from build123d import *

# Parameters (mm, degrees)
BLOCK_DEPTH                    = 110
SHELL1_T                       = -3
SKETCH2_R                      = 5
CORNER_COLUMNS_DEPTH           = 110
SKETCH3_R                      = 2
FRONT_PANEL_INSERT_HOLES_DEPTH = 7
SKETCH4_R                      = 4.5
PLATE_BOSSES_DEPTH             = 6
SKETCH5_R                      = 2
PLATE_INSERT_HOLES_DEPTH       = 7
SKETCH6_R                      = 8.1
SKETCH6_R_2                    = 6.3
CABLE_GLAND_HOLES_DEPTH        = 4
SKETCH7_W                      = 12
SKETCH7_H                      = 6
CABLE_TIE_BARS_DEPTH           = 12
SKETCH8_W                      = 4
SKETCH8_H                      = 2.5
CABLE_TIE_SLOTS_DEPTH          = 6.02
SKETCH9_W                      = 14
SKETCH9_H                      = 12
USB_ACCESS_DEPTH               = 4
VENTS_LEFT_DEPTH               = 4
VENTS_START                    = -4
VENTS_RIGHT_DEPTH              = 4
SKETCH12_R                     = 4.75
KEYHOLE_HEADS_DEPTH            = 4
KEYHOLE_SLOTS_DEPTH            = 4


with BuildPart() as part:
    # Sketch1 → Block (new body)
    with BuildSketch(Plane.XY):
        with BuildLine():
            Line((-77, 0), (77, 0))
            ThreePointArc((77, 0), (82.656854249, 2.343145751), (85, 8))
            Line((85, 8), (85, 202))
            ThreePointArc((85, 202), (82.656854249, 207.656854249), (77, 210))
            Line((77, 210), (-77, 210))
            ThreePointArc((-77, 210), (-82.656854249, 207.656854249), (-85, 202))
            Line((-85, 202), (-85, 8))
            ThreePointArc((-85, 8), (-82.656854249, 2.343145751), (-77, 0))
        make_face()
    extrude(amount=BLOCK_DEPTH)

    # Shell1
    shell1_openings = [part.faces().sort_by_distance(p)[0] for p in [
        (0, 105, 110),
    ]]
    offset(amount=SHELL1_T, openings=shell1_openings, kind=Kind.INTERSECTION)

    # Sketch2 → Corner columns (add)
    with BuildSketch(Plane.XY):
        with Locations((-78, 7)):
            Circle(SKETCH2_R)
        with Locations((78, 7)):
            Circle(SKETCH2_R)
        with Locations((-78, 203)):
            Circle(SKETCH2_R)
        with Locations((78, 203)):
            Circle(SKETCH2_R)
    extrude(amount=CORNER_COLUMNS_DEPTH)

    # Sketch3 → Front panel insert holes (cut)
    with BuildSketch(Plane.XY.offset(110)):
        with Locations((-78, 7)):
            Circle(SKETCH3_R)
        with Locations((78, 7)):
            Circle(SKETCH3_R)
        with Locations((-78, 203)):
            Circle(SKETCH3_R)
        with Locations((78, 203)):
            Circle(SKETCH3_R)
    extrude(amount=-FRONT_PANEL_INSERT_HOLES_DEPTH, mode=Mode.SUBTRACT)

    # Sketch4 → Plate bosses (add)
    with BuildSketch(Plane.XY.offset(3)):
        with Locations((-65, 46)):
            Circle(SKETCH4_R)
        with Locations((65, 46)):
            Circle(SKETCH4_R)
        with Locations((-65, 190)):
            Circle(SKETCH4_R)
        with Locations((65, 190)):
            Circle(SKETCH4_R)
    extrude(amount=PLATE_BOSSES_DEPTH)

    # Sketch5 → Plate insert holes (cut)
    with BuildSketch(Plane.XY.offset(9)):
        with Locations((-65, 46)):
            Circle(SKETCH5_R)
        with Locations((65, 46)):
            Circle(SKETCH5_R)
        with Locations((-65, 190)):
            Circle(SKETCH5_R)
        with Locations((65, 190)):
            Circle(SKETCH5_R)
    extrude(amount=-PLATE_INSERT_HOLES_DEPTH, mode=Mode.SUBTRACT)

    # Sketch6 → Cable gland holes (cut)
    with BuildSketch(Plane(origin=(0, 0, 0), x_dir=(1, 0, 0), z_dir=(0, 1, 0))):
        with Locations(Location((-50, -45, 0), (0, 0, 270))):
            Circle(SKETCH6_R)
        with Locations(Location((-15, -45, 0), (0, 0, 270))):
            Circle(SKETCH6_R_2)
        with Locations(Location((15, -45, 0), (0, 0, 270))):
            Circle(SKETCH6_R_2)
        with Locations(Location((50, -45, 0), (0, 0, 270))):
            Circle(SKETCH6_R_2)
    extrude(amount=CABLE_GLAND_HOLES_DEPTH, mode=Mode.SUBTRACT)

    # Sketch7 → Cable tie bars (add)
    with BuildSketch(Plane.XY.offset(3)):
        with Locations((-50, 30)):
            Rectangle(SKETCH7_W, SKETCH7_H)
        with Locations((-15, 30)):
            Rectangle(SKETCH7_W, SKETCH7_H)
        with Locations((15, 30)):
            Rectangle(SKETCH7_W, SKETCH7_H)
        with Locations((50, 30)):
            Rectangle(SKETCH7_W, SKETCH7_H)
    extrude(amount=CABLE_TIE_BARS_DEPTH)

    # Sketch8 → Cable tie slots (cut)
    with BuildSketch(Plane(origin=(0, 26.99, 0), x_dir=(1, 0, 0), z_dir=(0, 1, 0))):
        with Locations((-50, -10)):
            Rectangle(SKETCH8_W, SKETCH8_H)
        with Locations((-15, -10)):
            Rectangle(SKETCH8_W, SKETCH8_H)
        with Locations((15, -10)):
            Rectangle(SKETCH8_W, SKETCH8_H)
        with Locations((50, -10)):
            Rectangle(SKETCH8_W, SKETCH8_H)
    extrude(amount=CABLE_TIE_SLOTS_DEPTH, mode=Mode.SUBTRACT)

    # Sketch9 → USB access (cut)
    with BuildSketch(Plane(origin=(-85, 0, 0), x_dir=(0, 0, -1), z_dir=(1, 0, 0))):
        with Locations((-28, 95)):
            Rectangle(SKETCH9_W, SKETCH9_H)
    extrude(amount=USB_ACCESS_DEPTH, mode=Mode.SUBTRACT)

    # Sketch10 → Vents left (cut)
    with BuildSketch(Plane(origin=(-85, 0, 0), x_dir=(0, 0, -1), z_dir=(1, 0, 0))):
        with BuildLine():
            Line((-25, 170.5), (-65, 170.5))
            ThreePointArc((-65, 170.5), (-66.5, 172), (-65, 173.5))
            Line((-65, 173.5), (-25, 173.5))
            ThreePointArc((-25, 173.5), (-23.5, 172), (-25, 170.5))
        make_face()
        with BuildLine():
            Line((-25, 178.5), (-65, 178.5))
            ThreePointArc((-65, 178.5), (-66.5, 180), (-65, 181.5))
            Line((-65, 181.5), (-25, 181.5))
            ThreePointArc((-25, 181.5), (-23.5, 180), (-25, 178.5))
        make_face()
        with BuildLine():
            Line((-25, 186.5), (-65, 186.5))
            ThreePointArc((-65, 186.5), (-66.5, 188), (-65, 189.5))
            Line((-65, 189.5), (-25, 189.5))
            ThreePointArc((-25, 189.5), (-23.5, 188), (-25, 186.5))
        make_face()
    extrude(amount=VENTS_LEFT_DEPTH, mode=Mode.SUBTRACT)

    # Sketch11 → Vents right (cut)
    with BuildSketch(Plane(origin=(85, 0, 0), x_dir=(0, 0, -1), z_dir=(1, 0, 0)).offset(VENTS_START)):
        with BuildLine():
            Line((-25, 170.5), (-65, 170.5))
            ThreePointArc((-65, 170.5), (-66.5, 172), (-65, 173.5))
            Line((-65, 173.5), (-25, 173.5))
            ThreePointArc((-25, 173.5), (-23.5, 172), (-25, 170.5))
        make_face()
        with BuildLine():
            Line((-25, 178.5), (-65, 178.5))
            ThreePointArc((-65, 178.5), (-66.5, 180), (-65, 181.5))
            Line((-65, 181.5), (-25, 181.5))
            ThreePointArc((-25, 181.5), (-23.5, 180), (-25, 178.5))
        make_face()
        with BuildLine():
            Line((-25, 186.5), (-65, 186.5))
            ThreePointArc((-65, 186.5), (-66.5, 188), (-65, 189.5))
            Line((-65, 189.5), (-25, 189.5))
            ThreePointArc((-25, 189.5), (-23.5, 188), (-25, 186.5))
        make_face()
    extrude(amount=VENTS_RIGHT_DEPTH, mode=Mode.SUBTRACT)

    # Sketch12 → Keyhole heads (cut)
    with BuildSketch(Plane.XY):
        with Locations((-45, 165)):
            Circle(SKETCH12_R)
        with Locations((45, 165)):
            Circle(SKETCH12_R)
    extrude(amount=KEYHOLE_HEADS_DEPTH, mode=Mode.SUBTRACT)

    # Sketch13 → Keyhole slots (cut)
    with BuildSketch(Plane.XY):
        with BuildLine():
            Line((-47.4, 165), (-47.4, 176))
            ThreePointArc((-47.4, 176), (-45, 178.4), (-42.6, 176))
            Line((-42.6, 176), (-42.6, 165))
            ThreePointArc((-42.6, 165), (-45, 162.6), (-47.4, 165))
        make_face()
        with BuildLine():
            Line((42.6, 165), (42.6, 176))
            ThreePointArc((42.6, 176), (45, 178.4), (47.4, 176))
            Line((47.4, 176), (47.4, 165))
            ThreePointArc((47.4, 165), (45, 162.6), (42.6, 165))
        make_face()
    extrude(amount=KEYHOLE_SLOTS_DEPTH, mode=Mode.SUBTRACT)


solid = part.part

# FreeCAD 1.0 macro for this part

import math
import FreeCAD as App
import Part
import Sketcher

V = App.Vector
Q = App.Units.Quantity


def faces_at(feature, points):
    """Names of the faces that lie closest to the given points."""
    faces = feature.Shape.Faces
    near = lambda p: min(range(len(faces)), key=lambda i: faces[i].distToShape(Part.Vertex(*p))[0])
    return sorted({f"Face{near(p) + 1}" for p in points})

doc = App.newDocument("Part")
body = doc.addObject("PartDesign::Body", "Body")

# Sketch on XY plane
sketch1 = doc.addObject("Sketcher::SketchObject", "Sketch")
body.addObject(sketch1)
sketch1.AttachmentSupport = (doc.XY_Plane, [""])
sketch1.MapMode = "FlatFace"
sketch1.addGeometry(Part.LineSegment(V(-77, 0, 0), V(77, 0, 0)), False)
sketch1.addGeometry(Part.ArcOfCircle(Part.Circle(V(77, 8, 0), V(0, 0, 1), 8), math.radians(-90), math.radians(0)), False)
sketch1.addGeometry(Part.LineSegment(V(85, 8, 0), V(85, 202, 0)), False)
sketch1.addGeometry(Part.ArcOfCircle(Part.Circle(V(77, 202, 0), V(0, 0, 1), 8), math.radians(0), math.radians(90)), False)
sketch1.addGeometry(Part.LineSegment(V(77, 210, 0), V(-77, 210, 0)), False)
sketch1.addGeometry(Part.ArcOfCircle(Part.Circle(V(-77, 202, 0), V(0, 0, 1), 8), math.radians(90), math.radians(180)), False)
sketch1.addGeometry(Part.LineSegment(V(-85, 202, 0), V(-85, 8, 0)), False)
sketch1.addGeometry(Part.ArcOfCircle(Part.Circle(V(-77, 8, 0), V(0, 0, 1), 8), math.radians(-180), math.radians(-90)), False)
sketch1.addConstraint(Sketcher.Constraint("Tangent", 0, 2, 1, 1))
sketch1.addConstraint(Sketcher.Constraint("Tangent", 1, 2, 2, 1))
sketch1.addConstraint(Sketcher.Constraint("Tangent", 2, 2, 3, 1))
sketch1.addConstraint(Sketcher.Constraint("Tangent", 3, 2, 4, 1))
sketch1.addConstraint(Sketcher.Constraint("Tangent", 4, 2, 5, 1))
sketch1.addConstraint(Sketcher.Constraint("Tangent", 5, 2, 6, 1))
sketch1.addConstraint(Sketcher.Constraint("Tangent", 6, 2, 7, 1))
sketch1.addConstraint(Sketcher.Constraint("Tangent", 7, 2, 0, 1))
sketch1.addConstraint(Sketcher.Constraint("Horizontal", 0))
sketch1.addConstraint(Sketcher.Constraint("Vertical", 2))
sketch1.addConstraint(Sketcher.Constraint("Horizontal", 4))
sketch1.addConstraint(Sketcher.Constraint("Vertical", 6))
sketch1.addConstraint(Sketcher.Constraint("Equal", 1, 3))
sketch1.addConstraint(Sketcher.Constraint("Equal", 3, 5))
sketch1.addConstraint(Sketcher.Constraint("Equal", 5, 7))
sketch1.addConstraint(Sketcher.Constraint("Symmetric", 0, 2, 7, 2, -1, 1))
sketch1.addConstraint(Sketcher.Constraint("Radius", 1, Q("8 mm")))
sketch1.addConstraint(Sketcher.Constraint("DistanceX", 0, 1, 0, 2, Q("154 mm")))
sketch1.addConstraint(Sketcher.Constraint("DistanceY", 2, 1, 2, 2, Q("194 mm")))
pad1 = doc.addObject("PartDesign::Pad", "Pad")
body.addObject(pad1)
pad1.Profile = sketch1
pad1.Length = 110
doc.recompute()

thickness = doc.addObject("PartDesign::Thickness", "Thickness")
body.addObject(thickness)
thickness.Base = (pad1, faces_at(pad1, [(0, 105, 110)]))
thickness.Value = 3
thickness.Reversed = True
thickness.Join = "Intersection"

# Sketch on XY plane
sketch2 = doc.addObject("Sketcher::SketchObject", "Sketch001")
body.addObject(sketch2)
sketch2.AttachmentSupport = (doc.XY_Plane, [""])
sketch2.MapMode = "FlatFace"
sketch2.addGeometry(Part.Circle(V(-78, 7, 0), V(0, 0, 1), 5), False)
sketch2.addGeometry(Part.Circle(V(78, 7, 0), V(0, 0, 1), 5), False)
sketch2.addGeometry(Part.Circle(V(-78, 203, 0), V(0, 0, 1), 5), False)
sketch2.addGeometry(Part.Circle(V(78, 203, 0), V(0, 0, 1), 5), False)
sketch2.addConstraint(Sketcher.Constraint("Equal", 0, 1))
sketch2.addConstraint(Sketcher.Constraint("Equal", 1, 2))
sketch2.addConstraint(Sketcher.Constraint("Equal", 2, 3))
sketch2.addConstraint(Sketcher.Constraint("Symmetric", 0, 3, 1, 3, -2))
sketch2.addConstraint(Sketcher.Constraint("Symmetric", 2, 3, 3, 3, -2))
sketch2.addConstraint(Sketcher.Constraint("Vertical", 0, 3, 2, 3))
sketch2.addConstraint(Sketcher.Constraint("Diameter", 0, Q("10 mm")))
sketch2.addConstraint(Sketcher.Constraint("DistanceX", 0, 3, -1, 1, Q("78 mm")))
sketch2.addConstraint(Sketcher.Constraint("DistanceY", -1, 1, 0, 3, Q("7 mm")))
sketch2.addConstraint(Sketcher.Constraint("DistanceY", -1, 1, 2, 3, Q("203 mm")))
pad2 = doc.addObject("PartDesign::Pad", "Pad001")
body.addObject(pad2)
pad2.Profile = sketch2
pad2.Length = 110

# Sketch on XY plane
sketch3 = doc.addObject("Sketcher::SketchObject", "Sketch002")
body.addObject(sketch3)
sketch3.AttachmentSupport = (doc.XY_Plane, [""])
sketch3.MapMode = "FlatFace"
sketch3.AttachmentOffset = App.Placement(V(0, 0, 110), App.Rotation())
sketch3.addGeometry(Part.Circle(V(-78, 7, 0), V(0, 0, 1), 2), False)
sketch3.addGeometry(Part.Circle(V(78, 7, 0), V(0, 0, 1), 2), False)
sketch3.addGeometry(Part.Circle(V(-78, 203, 0), V(0, 0, 1), 2), False)
sketch3.addGeometry(Part.Circle(V(78, 203, 0), V(0, 0, 1), 2), False)
sketch3.addConstraint(Sketcher.Constraint("Equal", 0, 1))
sketch3.addConstraint(Sketcher.Constraint("Equal", 1, 2))
sketch3.addConstraint(Sketcher.Constraint("Equal", 2, 3))
sketch3.addConstraint(Sketcher.Constraint("Symmetric", 0, 3, 1, 3, -2))
sketch3.addConstraint(Sketcher.Constraint("Symmetric", 2, 3, 3, 3, -2))
sketch3.addConstraint(Sketcher.Constraint("Vertical", 0, 3, 2, 3))
sketch3.addConstraint(Sketcher.Constraint("Diameter", 0, Q("4 mm")))
sketch3.addConstraint(Sketcher.Constraint("DistanceX", 0, 3, -1, 1, Q("78 mm")))
sketch3.addConstraint(Sketcher.Constraint("DistanceY", -1, 1, 0, 3, Q("7 mm")))
sketch3.addConstraint(Sketcher.Constraint("DistanceY", -1, 1, 2, 3, Q("203 mm")))
pocket1 = doc.addObject("PartDesign::Pocket", "Pocket")
body.addObject(pocket1)
pocket1.Profile = sketch3
pocket1.Length = 7

# Sketch on XY plane
sketch4 = doc.addObject("Sketcher::SketchObject", "Sketch003")
body.addObject(sketch4)
sketch4.AttachmentSupport = (doc.XY_Plane, [""])
sketch4.MapMode = "FlatFace"
sketch4.AttachmentOffset = App.Placement(V(0, 0, 3), App.Rotation())
sketch4.addGeometry(Part.Circle(V(-65, 46, 0), V(0, 0, 1), 4.5), False)
sketch4.addGeometry(Part.Circle(V(65, 46, 0), V(0, 0, 1), 4.5), False)
sketch4.addGeometry(Part.Circle(V(-65, 190, 0), V(0, 0, 1), 4.5), False)
sketch4.addGeometry(Part.Circle(V(65, 190, 0), V(0, 0, 1), 4.5), False)
sketch4.addConstraint(Sketcher.Constraint("Equal", 0, 1))
sketch4.addConstraint(Sketcher.Constraint("Equal", 1, 2))
sketch4.addConstraint(Sketcher.Constraint("Equal", 2, 3))
sketch4.addConstraint(Sketcher.Constraint("Symmetric", 0, 3, 1, 3, -2))
sketch4.addConstraint(Sketcher.Constraint("Symmetric", 2, 3, 3, 3, -2))
sketch4.addConstraint(Sketcher.Constraint("Vertical", 0, 3, 2, 3))
sketch4.addConstraint(Sketcher.Constraint("Diameter", 0, Q("9 mm")))
sketch4.addConstraint(Sketcher.Constraint("DistanceX", 0, 3, -1, 1, Q("65 mm")))
sketch4.addConstraint(Sketcher.Constraint("DistanceY", -1, 1, 0, 3, Q("46 mm")))
sketch4.addConstraint(Sketcher.Constraint("DistanceY", -1, 1, 2, 3, Q("190 mm")))
pad3 = doc.addObject("PartDesign::Pad", "Pad002")
body.addObject(pad3)
pad3.Profile = sketch4
pad3.Length = 6

# Sketch on XY plane
sketch5 = doc.addObject("Sketcher::SketchObject", "Sketch004")
body.addObject(sketch5)
sketch5.AttachmentSupport = (doc.XY_Plane, [""])
sketch5.MapMode = "FlatFace"
sketch5.AttachmentOffset = App.Placement(V(0, 0, 9), App.Rotation())
sketch5.addGeometry(Part.Circle(V(-65, 46, 0), V(0, 0, 1), 2), False)
sketch5.addGeometry(Part.Circle(V(65, 46, 0), V(0, 0, 1), 2), False)
sketch5.addGeometry(Part.Circle(V(-65, 190, 0), V(0, 0, 1), 2), False)
sketch5.addGeometry(Part.Circle(V(65, 190, 0), V(0, 0, 1), 2), False)
sketch5.addConstraint(Sketcher.Constraint("Equal", 0, 1))
sketch5.addConstraint(Sketcher.Constraint("Equal", 1, 2))
sketch5.addConstraint(Sketcher.Constraint("Equal", 2, 3))
sketch5.addConstraint(Sketcher.Constraint("Symmetric", 0, 3, 1, 3, -2))
sketch5.addConstraint(Sketcher.Constraint("Symmetric", 2, 3, 3, 3, -2))
sketch5.addConstraint(Sketcher.Constraint("Vertical", 0, 3, 2, 3))
sketch5.addConstraint(Sketcher.Constraint("Diameter", 0, Q("4 mm")))
sketch5.addConstraint(Sketcher.Constraint("DistanceX", 0, 3, -1, 1, Q("65 mm")))
sketch5.addConstraint(Sketcher.Constraint("DistanceY", -1, 1, 0, 3, Q("46 mm")))
sketch5.addConstraint(Sketcher.Constraint("DistanceY", -1, 1, 2, 3, Q("190 mm")))
pocket2 = doc.addObject("PartDesign::Pocket", "Pocket001")
body.addObject(pocket2)
pocket2.Profile = sketch5
pocket2.Length = 7

# Sketch on XZ plane
sketch6 = doc.addObject("Sketcher::SketchObject", "Sketch005")
body.addObject(sketch6)
sketch6.AttachmentSupport = (doc.XZ_Plane, [""])
sketch6.MapMode = "FlatFace"
sketch6.addGeometry(Part.Circle(V(-50, 45, 0), V(0, 0, 1), 8), False)
sketch6.addGeometry(Part.Circle(V(-15, 45, 0), V(0, 0, 1), 6), False)
sketch6.addGeometry(Part.Circle(V(15, 45, 0), V(0, 0, 1), 6), False)
sketch6.addGeometry(Part.Circle(V(50, 45, 0), V(0, 0, 1), 6), False)
sketch6.addConstraint(Sketcher.Constraint("Equal", 1, 2))
sketch6.addConstraint(Sketcher.Constraint("Equal", 2, 3))
sketch6.addConstraint(Sketcher.Constraint("Symmetric", 1, 3, 2, 3, -2))
sketch6.addConstraint(Sketcher.Constraint("Symmetric", 0, 3, 3, 3, -2))
sketch6.addConstraint(Sketcher.Constraint("Horizontal", 0, 3, 1, 3))
sketch6.addConstraint(Sketcher.Constraint("Diameter", 0, Q("16.2 mm")))
sketch6.addConstraint(Sketcher.Constraint("Diameter", 1, Q("12.6 mm")))
sketch6.addConstraint(Sketcher.Constraint("DistanceX", 0, 3, -1, 1, Q("50 mm")))
sketch6.addConstraint(Sketcher.Constraint("DistanceY", -1, 1, 0, 3, Q("45 mm")))
sketch6.addConstraint(Sketcher.Constraint("DistanceX", 1, 3, -1, 1, Q("15 mm")))
pocket3 = doc.addObject("PartDesign::Pocket", "Pocket002")
body.addObject(pocket3)
pocket3.Profile = sketch6
pocket3.Length = 4

# Sketch on XY plane
sketch7 = doc.addObject("Sketcher::SketchObject", "Sketch006")
body.addObject(sketch7)
sketch7.AttachmentSupport = (doc.XY_Plane, [""])
sketch7.MapMode = "FlatFace"
sketch7.AttachmentOffset = App.Placement(V(0, 0, 3), App.Rotation())
sketch7.addGeometry(Part.LineSegment(V(-56, 33, 0), V(-56, 27, 0)), False)
sketch7.addGeometry(Part.LineSegment(V(-56, 27, 0), V(-44, 27, 0)), False)
sketch7.addGeometry(Part.LineSegment(V(-44, 27, 0), V(-44, 33, 0)), False)
sketch7.addGeometry(Part.LineSegment(V(-44, 33, 0), V(-56, 33, 0)), False)
sketch7.addGeometry(Part.LineSegment(V(-21, 33, 0), V(-21, 27, 0)), False)
sketch7.addGeometry(Part.LineSegment(V(-21, 27, 0), V(-9, 27, 0)), False)
sketch7.addGeometry(Part.LineSegment(V(-9, 27, 0), V(-9, 33, 0)), False)
sketch7.addGeometry(Part.LineSegment(V(-9, 33, 0), V(-21, 33, 0)), False)
sketch7.addGeometry(Part.LineSegment(V(9, 33, 0), V(9, 27, 0)), False)
sketch7.addGeometry(Part.LineSegment(V(9, 27, 0), V(21, 27, 0)), False)
sketch7.addGeometry(Part.LineSegment(V(21, 27, 0), V(21, 33, 0)), False)
sketch7.addGeometry(Part.LineSegment(V(21, 33, 0), V(9, 33, 0)), False)
sketch7.addGeometry(Part.LineSegment(V(44, 33, 0), V(44, 27, 0)), False)
sketch7.addGeometry(Part.LineSegment(V(44, 27, 0), V(56, 27, 0)), False)
sketch7.addGeometry(Part.LineSegment(V(56, 27, 0), V(56, 33, 0)), False)
sketch7.addGeometry(Part.LineSegment(V(56, 33, 0), V(44, 33, 0)), False)
sketch7.addConstraint(Sketcher.Constraint("Coincident", 0, 2, 1, 1))
sketch7.addConstraint(Sketcher.Constraint("Coincident", 1, 2, 2, 1))
sketch7.addConstraint(Sketcher.Constraint("Coincident", 2, 2, 3, 1))
sketch7.addConstraint(Sketcher.Constraint("Coincident", 3, 2, 0, 1))
sketch7.addConstraint(Sketcher.Constraint("Coincident", 4, 2, 5, 1))
sketch7.addConstraint(Sketcher.Constraint("Coincident", 5, 2, 6, 1))
sketch7.addConstraint(Sketcher.Constraint("Coincident", 6, 2, 7, 1))
sketch7.addConstraint(Sketcher.Constraint("Coincident", 7, 2, 4, 1))
sketch7.addConstraint(Sketcher.Constraint("Coincident", 8, 2, 9, 1))
sketch7.addConstraint(Sketcher.Constraint("Coincident", 9, 2, 10, 1))
sketch7.addConstraint(Sketcher.Constraint("Coincident", 10, 2, 11, 1))
sketch7.addConstraint(Sketcher.Constraint("Coincident", 11, 2, 8, 1))
sketch7.addConstraint(Sketcher.Constraint("Coincident", 12, 2, 13, 1))
sketch7.addConstraint(Sketcher.Constraint("Coincident", 13, 2, 14, 1))
sketch7.addConstraint(Sketcher.Constraint("Coincident", 14, 2, 15, 1))
sketch7.addConstraint(Sketcher.Constraint("Coincident", 15, 2, 12, 1))
sketch7.addConstraint(Sketcher.Constraint("Vertical", 0))
sketch7.addConstraint(Sketcher.Constraint("Horizontal", 1))
sketch7.addConstraint(Sketcher.Constraint("Vertical", 2))
sketch7.addConstraint(Sketcher.Constraint("Horizontal", 3))
sketch7.addConstraint(Sketcher.Constraint("Vertical", 4))
sketch7.addConstraint(Sketcher.Constraint("Horizontal", 5))
sketch7.addConstraint(Sketcher.Constraint("Vertical", 6))
sketch7.addConstraint(Sketcher.Constraint("Horizontal", 7))
sketch7.addConstraint(Sketcher.Constraint("Vertical", 8))
sketch7.addConstraint(Sketcher.Constraint("Horizontal", 9))
sketch7.addConstraint(Sketcher.Constraint("Vertical", 10))
sketch7.addConstraint(Sketcher.Constraint("Horizontal", 11))
sketch7.addConstraint(Sketcher.Constraint("Vertical", 12))
sketch7.addConstraint(Sketcher.Constraint("Horizontal", 13))
sketch7.addConstraint(Sketcher.Constraint("Vertical", 14))
sketch7.addConstraint(Sketcher.Constraint("Horizontal", 15))
sketch7.addConstraint(Sketcher.Constraint("Symmetric", 5, 2, 8, 2, -2))
sketch7.addConstraint(Sketcher.Constraint("Symmetric", 7, 2, 10, 2, -2))
sketch7.addConstraint(Sketcher.Constraint("Symmetric", 1, 2, 12, 2, -2))
sketch7.addConstraint(Sketcher.Constraint("Symmetric", 3, 2, 14, 2, -2))
sketch7.addConstraint(Sketcher.Constraint("Horizontal", 1, 2, 4, 2))
sketch7.addConstraint(Sketcher.Constraint("Horizontal", 3, 2, 6, 2))
sketch7.addConstraint(Sketcher.Constraint("Equal", 3, 5))
sketch7.addConstraint(Sketcher.Constraint("DistanceX", 1, 1, 1, 2, Q("12 mm")))
sketch7.addConstraint(Sketcher.Constraint("DistanceY", 0, 2, 0, 1, Q("6 mm")))
sketch7.addConstraint(Sketcher.Constraint("DistanceX", 0, 2, -1, 1, Q("56 mm")))
sketch7.addConstraint(Sketcher.Constraint("DistanceY", -1, 1, 0, 2, Q("27 mm")))
sketch7.addConstraint(Sketcher.Constraint("DistanceX", 4, 2, -1, 1, Q("21 mm")))
pad4 = doc.addObject("PartDesign::Pad", "Pad003")
body.addObject(pad4)
pad4.Profile = sketch7
pad4.Length = 12

# Sketch on XZ plane
sketch8 = doc.addObject("Sketcher::SketchObject", "Sketch007")
body.addObject(sketch8)
sketch8.AttachmentSupport = (doc.XZ_Plane, [""])
sketch8.MapMode = "FlatFace"
sketch8.AttachmentOffset = App.Placement(V(0, 0, -26.99), App.Rotation())
sketch8.addGeometry(Part.LineSegment(V(-52, 8.8, 0), V(-52, 11.2, 0)), False)
sketch8.addGeometry(Part.LineSegment(V(-52, 11.2, 0), V(-48, 11.2, 0)), False)
sketch8.addGeometry(Part.LineSegment(V(-48, 11.2, 0), V(-48, 8.8, 0)), False)
sketch8.addGeometry(Part.LineSegment(V(-48, 8.8, 0), V(-52, 8.8, 0)), False)
sketch8.addGeometry(Part.LineSegment(V(-17, 8.8, 0), V(-17, 11.2, 0)), False)
sketch8.addGeometry(Part.LineSegment(V(-17, 11.2, 0), V(-13, 11.2, 0)), False)
sketch8.addGeometry(Part.LineSegment(V(-13, 11.2, 0), V(-13, 8.8, 0)), False)
sketch8.addGeometry(Part.LineSegment(V(-13, 8.8, 0), V(-17, 8.8, 0)), False)
sketch8.addGeometry(Part.LineSegment(V(13, 8.8, 0), V(13, 11.2, 0)), False)
sketch8.addGeometry(Part.LineSegment(V(13, 11.2, 0), V(17, 11.2, 0)), False)
sketch8.addGeometry(Part.LineSegment(V(17, 11.2, 0), V(17, 8.8, 0)), False)
sketch8.addGeometry(Part.LineSegment(V(17, 8.8, 0), V(13, 8.8, 0)), False)
sketch8.addGeometry(Part.LineSegment(V(48, 8.8, 0), V(48, 11.2, 0)), False)
sketch8.addGeometry(Part.LineSegment(V(48, 11.2, 0), V(52, 11.2, 0)), False)
sketch8.addGeometry(Part.LineSegment(V(52, 11.2, 0), V(52, 8.8, 0)), False)
sketch8.addGeometry(Part.LineSegment(V(52, 8.8, 0), V(48, 8.8, 0)), False)
sketch8.addConstraint(Sketcher.Constraint("Coincident", 0, 2, 1, 1))
sketch8.addConstraint(Sketcher.Constraint("Coincident", 1, 2, 2, 1))
sketch8.addConstraint(Sketcher.Constraint("Coincident", 2, 2, 3, 1))
sketch8.addConstraint(Sketcher.Constraint("Coincident", 3, 2, 0, 1))
sketch8.addConstraint(Sketcher.Constraint("Coincident", 4, 2, 5, 1))
sketch8.addConstraint(Sketcher.Constraint("Coincident", 5, 2, 6, 1))
sketch8.addConstraint(Sketcher.Constraint("Coincident", 6, 2, 7, 1))
sketch8.addConstraint(Sketcher.Constraint("Coincident", 7, 2, 4, 1))
sketch8.addConstraint(Sketcher.Constraint("Coincident", 8, 2, 9, 1))
sketch8.addConstraint(Sketcher.Constraint("Coincident", 9, 2, 10, 1))
sketch8.addConstraint(Sketcher.Constraint("Coincident", 10, 2, 11, 1))
sketch8.addConstraint(Sketcher.Constraint("Coincident", 11, 2, 8, 1))
sketch8.addConstraint(Sketcher.Constraint("Coincident", 12, 2, 13, 1))
sketch8.addConstraint(Sketcher.Constraint("Coincident", 13, 2, 14, 1))
sketch8.addConstraint(Sketcher.Constraint("Coincident", 14, 2, 15, 1))
sketch8.addConstraint(Sketcher.Constraint("Coincident", 15, 2, 12, 1))
sketch8.addConstraint(Sketcher.Constraint("Vertical", 0))
sketch8.addConstraint(Sketcher.Constraint("Horizontal", 1))
sketch8.addConstraint(Sketcher.Constraint("Vertical", 2))
sketch8.addConstraint(Sketcher.Constraint("Horizontal", 3))
sketch8.addConstraint(Sketcher.Constraint("Vertical", 4))
sketch8.addConstraint(Sketcher.Constraint("Horizontal", 5))
sketch8.addConstraint(Sketcher.Constraint("Vertical", 6))
sketch8.addConstraint(Sketcher.Constraint("Horizontal", 7))
sketch8.addConstraint(Sketcher.Constraint("Vertical", 8))
sketch8.addConstraint(Sketcher.Constraint("Horizontal", 9))
sketch8.addConstraint(Sketcher.Constraint("Vertical", 10))
sketch8.addConstraint(Sketcher.Constraint("Horizontal", 11))
sketch8.addConstraint(Sketcher.Constraint("Vertical", 12))
sketch8.addConstraint(Sketcher.Constraint("Horizontal", 13))
sketch8.addConstraint(Sketcher.Constraint("Vertical", 14))
sketch8.addConstraint(Sketcher.Constraint("Horizontal", 15))
sketch8.addConstraint(Sketcher.Constraint("Symmetric", 5, 2, 8, 2, -2))
sketch8.addConstraint(Sketcher.Constraint("Symmetric", 7, 2, 10, 2, -2))
sketch8.addConstraint(Sketcher.Constraint("Symmetric", 1, 2, 12, 2, -2))
sketch8.addConstraint(Sketcher.Constraint("Symmetric", 3, 2, 14, 2, -2))
sketch8.addConstraint(Sketcher.Constraint("Horizontal", 1, 2, 4, 2))
sketch8.addConstraint(Sketcher.Constraint("Horizontal", 3, 2, 6, 2))
sketch8.addConstraint(Sketcher.Constraint("Equal", 3, 5))
sketch8.addConstraint(Sketcher.Constraint("DistanceX", 1, 1, 1, 2, Q("4 mm")))
sketch8.addConstraint(Sketcher.Constraint("DistanceY", 0, 1, 0, 2, Q("2.5 mm")))
sketch8.addConstraint(Sketcher.Constraint("DistanceX", 0, 2, -1, 1, Q("52 mm")))
sketch8.addConstraint(Sketcher.Constraint("DistanceX", 4, 2, -1, 1, Q("17 mm")))
sketch8.addConstraint(Sketcher.Constraint("DistanceY", -1, 1, 0, 2, Q("11.25 mm")))
pocket4 = doc.addObject("PartDesign::Pocket", "Pocket003")
body.addObject(pocket4)
pocket4.Profile = sketch8
pocket4.Length = 6.02

# Sketch on YZ plane
sketch9 = doc.addObject("Sketcher::SketchObject", "Sketch008")
body.addObject(sketch9)
sketch9.AttachmentSupport = (doc.YZ_Plane, [""])
sketch9.MapMode = "FlatFace"
sketch9.AttachmentOffset = App.Placement(V(0, 0, -85), App.Rotation())
sketch9.addGeometry(Part.LineSegment(V(101, 35, 0), V(89, 35, 0)), False)
sketch9.addGeometry(Part.LineSegment(V(89, 35, 0), V(89, 21, 0)), False)
sketch9.addGeometry(Part.LineSegment(V(89, 21, 0), V(101, 21, 0)), False)
sketch9.addGeometry(Part.LineSegment(V(101, 21, 0), V(101, 35, 0)), False)
sketch9.addConstraint(Sketcher.Constraint("Coincident", 0, 2, 1, 1))
sketch9.addConstraint(Sketcher.Constraint("Coincident", 1, 2, 2, 1))
sketch9.addConstraint(Sketcher.Constraint("Coincident", 2, 2, 3, 1))
sketch9.addConstraint(Sketcher.Constraint("Coincident", 3, 2, 0, 1))
sketch9.addConstraint(Sketcher.Constraint("Horizontal", 0))
sketch9.addConstraint(Sketcher.Constraint("Vertical", 1))
sketch9.addConstraint(Sketcher.Constraint("Horizontal", 2))
sketch9.addConstraint(Sketcher.Constraint("Vertical", 3))
sketch9.addConstraint(Sketcher.Constraint("DistanceX", 0, 2, 0, 1, Q("12 mm")))
sketch9.addConstraint(Sketcher.Constraint("DistanceY", 1, 2, 1, 1, Q("14 mm")))
sketch9.addConstraint(Sketcher.Constraint("DistanceX", -1, 1, 0, 2, Q("89 mm")))
sketch9.addConstraint(Sketcher.Constraint("DistanceY", -1, 1, 0, 2, Q("35 mm")))
pocket5 = doc.addObject("PartDesign::Pocket", "Pocket004")
body.addObject(pocket5)
pocket5.Profile = sketch9
pocket5.Length = 4
pocket5.Reversed = True

# Sketch on YZ plane
sketch10 = doc.addObject("Sketcher::SketchObject", "Sketch009")
body.addObject(sketch10)
sketch10.AttachmentSupport = (doc.YZ_Plane, [""])
sketch10.MapMode = "FlatFace"
sketch10.AttachmentOffset = App.Placement(V(0, 0, -85), App.Rotation())
sketch10.addGeometry(Part.LineSegment(V(170.5, 65, 0), V(170.5, 25, 0)), False)
sketch10.addGeometry(Part.ArcOfCircle(Part.Circle(V(172, 25, 0), V(0, 0, 1), 1.5), math.radians(180), math.radians(360)), False)
sketch10.addGeometry(Part.LineSegment(V(173.5, 25, 0), V(173.5, 65, 0)), False)
sketch10.addGeometry(Part.ArcOfCircle(Part.Circle(V(172, 65, 0), V(0, 0, 1), 1.5), math.radians(0), math.radians(180)), False)
sketch10.addGeometry(Part.LineSegment(V(178.5, 65, 0), V(178.5, 25, 0)), False)
sketch10.addGeometry(Part.ArcOfCircle(Part.Circle(V(180, 25, 0), V(0, 0, 1), 1.5), math.radians(180), math.radians(360)), False)
sketch10.addGeometry(Part.LineSegment(V(181.5, 25, 0), V(181.5, 65, 0)), False)
sketch10.addGeometry(Part.ArcOfCircle(Part.Circle(V(180, 65, 0), V(0, 0, 1), 1.5), math.radians(0), math.radians(180)), False)
sketch10.addGeometry(Part.LineSegment(V(186.5, 65, 0), V(186.5, 25, 0)), False)
sketch10.addGeometry(Part.ArcOfCircle(Part.Circle(V(188, 25, 0), V(0, 0, 1), 1.5), math.radians(180), math.radians(360)), False)
sketch10.addGeometry(Part.LineSegment(V(189.5, 25, 0), V(189.5, 65, 0)), False)
sketch10.addGeometry(Part.ArcOfCircle(Part.Circle(V(188, 65, 0), V(0, 0, 1), 1.5), math.radians(0), math.radians(180)), False)
sketch10.addConstraint(Sketcher.Constraint("Tangent", 0, 2, 1, 1))
sketch10.addConstraint(Sketcher.Constraint("Tangent", 1, 2, 2, 1))
sketch10.addConstraint(Sketcher.Constraint("Tangent", 2, 2, 3, 1))
sketch10.addConstraint(Sketcher.Constraint("Tangent", 3, 2, 0, 1))
sketch10.addConstraint(Sketcher.Constraint("Tangent", 4, 2, 5, 1))
sketch10.addConstraint(Sketcher.Constraint("Tangent", 5, 2, 6, 1))
sketch10.addConstraint(Sketcher.Constraint("Tangent", 6, 2, 7, 1))
sketch10.addConstraint(Sketcher.Constraint("Tangent", 7, 2, 4, 1))
sketch10.addConstraint(Sketcher.Constraint("Tangent", 8, 2, 9, 1))
sketch10.addConstraint(Sketcher.Constraint("Tangent", 9, 2, 10, 1))
sketch10.addConstraint(Sketcher.Constraint("Tangent", 10, 2, 11, 1))
sketch10.addConstraint(Sketcher.Constraint("Tangent", 11, 2, 8, 1))
sketch10.addConstraint(Sketcher.Constraint("Vertical", 0))
sketch10.addConstraint(Sketcher.Constraint("Vertical", 2))
sketch10.addConstraint(Sketcher.Constraint("Vertical", 4))
sketch10.addConstraint(Sketcher.Constraint("Vertical", 6))
sketch10.addConstraint(Sketcher.Constraint("Vertical", 8))
sketch10.addConstraint(Sketcher.Constraint("Vertical", 10))
sketch10.addConstraint(Sketcher.Constraint("Equal", 3, 5))
sketch10.addConstraint(Sketcher.Constraint("Equal", 7, 9))
sketch10.addConstraint(Sketcher.Constraint("Horizontal", 1, 3, 5, 3))
sketch10.addConstraint(Sketcher.Constraint("Horizontal", 3, 3, 7, 3))
sketch10.addConstraint(Sketcher.Constraint("Horizontal", 5, 3, 9, 3))
sketch10.addConstraint(Sketcher.Constraint("Horizontal", 7, 3, 11, 3))
sketch10.addConstraint(Sketcher.Constraint("Radius", 1, Q("1.5 mm")))
sketch10.addConstraint(Sketcher.Constraint("DistanceY", 0, 2, 0, 1, Q("40 mm")))
sketch10.addConstraint(Sketcher.Constraint("DistanceX", -1, 1, 1, 3, Q("172 mm")))
sketch10.addConstraint(Sketcher.Constraint("DistanceY", -1, 1, 1, 3, Q("25 mm")))
sketch10.addConstraint(Sketcher.Constraint("DistanceX", -1, 1, 5, 3, Q("180 mm")))
sketch10.addConstraint(Sketcher.Constraint("DistanceX", -1, 1, 9, 3, Q("188 mm")))
pocket6 = doc.addObject("PartDesign::Pocket", "Pocket005")
body.addObject(pocket6)
pocket6.Profile = sketch10
pocket6.Length = 4
pocket6.Reversed = True

# Sketch on YZ plane
sketch11 = doc.addObject("Sketcher::SketchObject", "Sketch010")
body.addObject(sketch11)
sketch11.AttachmentSupport = (doc.YZ_Plane, [""])
sketch11.MapMode = "FlatFace"
sketch11.AttachmentOffset = App.Placement(V(0, 0, 81), App.Rotation())
sketch11.addGeometry(Part.LineSegment(V(170.5, 65, 0), V(170.5, 25, 0)), False)
sketch11.addGeometry(Part.ArcOfCircle(Part.Circle(V(172, 25, 0), V(0, 0, 1), 1.5), math.radians(180), math.radians(360)), False)
sketch11.addGeometry(Part.LineSegment(V(173.5, 25, 0), V(173.5, 65, 0)), False)
sketch11.addGeometry(Part.ArcOfCircle(Part.Circle(V(172, 65, 0), V(0, 0, 1), 1.5), math.radians(0), math.radians(180)), False)
sketch11.addGeometry(Part.LineSegment(V(178.5, 65, 0), V(178.5, 25, 0)), False)
sketch11.addGeometry(Part.ArcOfCircle(Part.Circle(V(180, 25, 0), V(0, 0, 1), 1.5), math.radians(180), math.radians(360)), False)
sketch11.addGeometry(Part.LineSegment(V(181.5, 25, 0), V(181.5, 65, 0)), False)
sketch11.addGeometry(Part.ArcOfCircle(Part.Circle(V(180, 65, 0), V(0, 0, 1), 1.5), math.radians(0), math.radians(180)), False)
sketch11.addGeometry(Part.LineSegment(V(186.5, 65, 0), V(186.5, 25, 0)), False)
sketch11.addGeometry(Part.ArcOfCircle(Part.Circle(V(188, 25, 0), V(0, 0, 1), 1.5), math.radians(180), math.radians(360)), False)
sketch11.addGeometry(Part.LineSegment(V(189.5, 25, 0), V(189.5, 65, 0)), False)
sketch11.addGeometry(Part.ArcOfCircle(Part.Circle(V(188, 65, 0), V(0, 0, 1), 1.5), math.radians(0), math.radians(180)), False)
sketch11.addConstraint(Sketcher.Constraint("Tangent", 0, 2, 1, 1))
sketch11.addConstraint(Sketcher.Constraint("Tangent", 1, 2, 2, 1))
sketch11.addConstraint(Sketcher.Constraint("Tangent", 2, 2, 3, 1))
sketch11.addConstraint(Sketcher.Constraint("Tangent", 3, 2, 0, 1))
sketch11.addConstraint(Sketcher.Constraint("Tangent", 4, 2, 5, 1))
sketch11.addConstraint(Sketcher.Constraint("Tangent", 5, 2, 6, 1))
sketch11.addConstraint(Sketcher.Constraint("Tangent", 6, 2, 7, 1))
sketch11.addConstraint(Sketcher.Constraint("Tangent", 7, 2, 4, 1))
sketch11.addConstraint(Sketcher.Constraint("Tangent", 8, 2, 9, 1))
sketch11.addConstraint(Sketcher.Constraint("Tangent", 9, 2, 10, 1))
sketch11.addConstraint(Sketcher.Constraint("Tangent", 10, 2, 11, 1))
sketch11.addConstraint(Sketcher.Constraint("Tangent", 11, 2, 8, 1))
sketch11.addConstraint(Sketcher.Constraint("Vertical", 0))
sketch11.addConstraint(Sketcher.Constraint("Vertical", 2))
sketch11.addConstraint(Sketcher.Constraint("Vertical", 4))
sketch11.addConstraint(Sketcher.Constraint("Vertical", 6))
sketch11.addConstraint(Sketcher.Constraint("Vertical", 8))
sketch11.addConstraint(Sketcher.Constraint("Vertical", 10))
sketch11.addConstraint(Sketcher.Constraint("Equal", 3, 5))
sketch11.addConstraint(Sketcher.Constraint("Equal", 7, 9))
sketch11.addConstraint(Sketcher.Constraint("Horizontal", 1, 3, 5, 3))
sketch11.addConstraint(Sketcher.Constraint("Horizontal", 3, 3, 7, 3))
sketch11.addConstraint(Sketcher.Constraint("Horizontal", 5, 3, 9, 3))
sketch11.addConstraint(Sketcher.Constraint("Horizontal", 7, 3, 11, 3))
sketch11.addConstraint(Sketcher.Constraint("Radius", 1, Q("1.5 mm")))
sketch11.addConstraint(Sketcher.Constraint("DistanceY", 0, 2, 0, 1, Q("40 mm")))
sketch11.addConstraint(Sketcher.Constraint("DistanceX", -1, 1, 1, 3, Q("172 mm")))
sketch11.addConstraint(Sketcher.Constraint("DistanceY", -1, 1, 1, 3, Q("25 mm")))
sketch11.addConstraint(Sketcher.Constraint("DistanceX", -1, 1, 5, 3, Q("180 mm")))
sketch11.addConstraint(Sketcher.Constraint("DistanceX", -1, 1, 9, 3, Q("188 mm")))
pocket7 = doc.addObject("PartDesign::Pocket", "Pocket006")
body.addObject(pocket7)
pocket7.Profile = sketch11
pocket7.Length = 4
pocket7.Reversed = True

# Sketch on XY plane
sketch12 = doc.addObject("Sketcher::SketchObject", "Sketch011")
body.addObject(sketch12)
sketch12.AttachmentSupport = (doc.XY_Plane, [""])
sketch12.MapMode = "FlatFace"
sketch12.addGeometry(Part.Circle(V(-45, 165, 0), V(0, 0, 1), 4.8), False)
sketch12.addGeometry(Part.Circle(V(45, 165, 0), V(0, 0, 1), 4.8), False)
sketch12.addConstraint(Sketcher.Constraint("Equal", 0, 1))
sketch12.addConstraint(Sketcher.Constraint("Symmetric", 0, 3, 1, 3, -2))
sketch12.addConstraint(Sketcher.Constraint("Diameter", 0, Q("9.5 mm")))
sketch12.addConstraint(Sketcher.Constraint("DistanceX", 0, 3, -1, 1, Q("45 mm")))
sketch12.addConstraint(Sketcher.Constraint("DistanceY", -1, 1, 0, 3, Q("165 mm")))
pocket8 = doc.addObject("PartDesign::Pocket", "Pocket007")
body.addObject(pocket8)
pocket8.Profile = sketch12
pocket8.Length = 4
pocket8.Reversed = True

# Sketch on XY plane
sketch13 = doc.addObject("Sketcher::SketchObject", "Sketch012")
body.addObject(sketch13)
sketch13.AttachmentSupport = (doc.XY_Plane, [""])
sketch13.MapMode = "FlatFace"
sketch13.addGeometry(Part.LineSegment(V(-47.4, 176, 0), V(-47.4, 165, 0)), False)
sketch13.addGeometry(Part.ArcOfCircle(Part.Circle(V(-45, 165, 0), V(0, 0, 1), 2.4), math.radians(180), math.radians(360)), False)
sketch13.addGeometry(Part.LineSegment(V(-42.6, 165, 0), V(-42.6, 176, 0)), False)
sketch13.addGeometry(Part.ArcOfCircle(Part.Circle(V(-45, 176, 0), V(0, 0, 1), 2.4), math.radians(0), math.radians(180)), False)
sketch13.addGeometry(Part.LineSegment(V(42.6, 176, 0), V(42.6, 165, 0)), False)
sketch13.addGeometry(Part.ArcOfCircle(Part.Circle(V(45, 165, 0), V(0, 0, 1), 2.4), math.radians(180), math.radians(360)), False)
sketch13.addGeometry(Part.LineSegment(V(47.4, 165, 0), V(47.4, 176, 0)), False)
sketch13.addGeometry(Part.ArcOfCircle(Part.Circle(V(45, 176, 0), V(0, 0, 1), 2.4), math.radians(0), math.radians(180)), False)
sketch13.addConstraint(Sketcher.Constraint("Tangent", 0, 2, 1, 1))
sketch13.addConstraint(Sketcher.Constraint("Tangent", 1, 2, 2, 1))
sketch13.addConstraint(Sketcher.Constraint("Tangent", 2, 2, 3, 1))
sketch13.addConstraint(Sketcher.Constraint("Tangent", 3, 2, 0, 1))
sketch13.addConstraint(Sketcher.Constraint("Tangent", 4, 2, 5, 1))
sketch13.addConstraint(Sketcher.Constraint("Tangent", 5, 2, 6, 1))
sketch13.addConstraint(Sketcher.Constraint("Tangent", 6, 2, 7, 1))
sketch13.addConstraint(Sketcher.Constraint("Tangent", 7, 2, 4, 1))
sketch13.addConstraint(Sketcher.Constraint("Vertical", 0))
sketch13.addConstraint(Sketcher.Constraint("Vertical", 2))
sketch13.addConstraint(Sketcher.Constraint("Vertical", 4))
sketch13.addConstraint(Sketcher.Constraint("Vertical", 6))
sketch13.addConstraint(Sketcher.Constraint("Equal", 3, 5))
sketch13.addConstraint(Sketcher.Constraint("Symmetric", 1, 3, 5, 3, -2))
sketch13.addConstraint(Sketcher.Constraint("Horizontal", 3, 3, 7, 3))
sketch13.addConstraint(Sketcher.Constraint("Radius", 1, Q("2.4 mm")))
sketch13.addConstraint(Sketcher.Constraint("DistanceY", 0, 2, 0, 1, Q("11 mm")))
sketch13.addConstraint(Sketcher.Constraint("DistanceX", 1, 3, -1, 1, Q("45 mm")))
sketch13.addConstraint(Sketcher.Constraint("DistanceY", -1, 1, 1, 3, Q("165 mm")))
pocket9 = doc.addObject("PartDesign::Pocket", "Pocket008")
body.addObject(pocket9)
pocket9.Profile = sketch13
pocket9.Length = 4
pocket9.Reversed = True

doc.recompute()
